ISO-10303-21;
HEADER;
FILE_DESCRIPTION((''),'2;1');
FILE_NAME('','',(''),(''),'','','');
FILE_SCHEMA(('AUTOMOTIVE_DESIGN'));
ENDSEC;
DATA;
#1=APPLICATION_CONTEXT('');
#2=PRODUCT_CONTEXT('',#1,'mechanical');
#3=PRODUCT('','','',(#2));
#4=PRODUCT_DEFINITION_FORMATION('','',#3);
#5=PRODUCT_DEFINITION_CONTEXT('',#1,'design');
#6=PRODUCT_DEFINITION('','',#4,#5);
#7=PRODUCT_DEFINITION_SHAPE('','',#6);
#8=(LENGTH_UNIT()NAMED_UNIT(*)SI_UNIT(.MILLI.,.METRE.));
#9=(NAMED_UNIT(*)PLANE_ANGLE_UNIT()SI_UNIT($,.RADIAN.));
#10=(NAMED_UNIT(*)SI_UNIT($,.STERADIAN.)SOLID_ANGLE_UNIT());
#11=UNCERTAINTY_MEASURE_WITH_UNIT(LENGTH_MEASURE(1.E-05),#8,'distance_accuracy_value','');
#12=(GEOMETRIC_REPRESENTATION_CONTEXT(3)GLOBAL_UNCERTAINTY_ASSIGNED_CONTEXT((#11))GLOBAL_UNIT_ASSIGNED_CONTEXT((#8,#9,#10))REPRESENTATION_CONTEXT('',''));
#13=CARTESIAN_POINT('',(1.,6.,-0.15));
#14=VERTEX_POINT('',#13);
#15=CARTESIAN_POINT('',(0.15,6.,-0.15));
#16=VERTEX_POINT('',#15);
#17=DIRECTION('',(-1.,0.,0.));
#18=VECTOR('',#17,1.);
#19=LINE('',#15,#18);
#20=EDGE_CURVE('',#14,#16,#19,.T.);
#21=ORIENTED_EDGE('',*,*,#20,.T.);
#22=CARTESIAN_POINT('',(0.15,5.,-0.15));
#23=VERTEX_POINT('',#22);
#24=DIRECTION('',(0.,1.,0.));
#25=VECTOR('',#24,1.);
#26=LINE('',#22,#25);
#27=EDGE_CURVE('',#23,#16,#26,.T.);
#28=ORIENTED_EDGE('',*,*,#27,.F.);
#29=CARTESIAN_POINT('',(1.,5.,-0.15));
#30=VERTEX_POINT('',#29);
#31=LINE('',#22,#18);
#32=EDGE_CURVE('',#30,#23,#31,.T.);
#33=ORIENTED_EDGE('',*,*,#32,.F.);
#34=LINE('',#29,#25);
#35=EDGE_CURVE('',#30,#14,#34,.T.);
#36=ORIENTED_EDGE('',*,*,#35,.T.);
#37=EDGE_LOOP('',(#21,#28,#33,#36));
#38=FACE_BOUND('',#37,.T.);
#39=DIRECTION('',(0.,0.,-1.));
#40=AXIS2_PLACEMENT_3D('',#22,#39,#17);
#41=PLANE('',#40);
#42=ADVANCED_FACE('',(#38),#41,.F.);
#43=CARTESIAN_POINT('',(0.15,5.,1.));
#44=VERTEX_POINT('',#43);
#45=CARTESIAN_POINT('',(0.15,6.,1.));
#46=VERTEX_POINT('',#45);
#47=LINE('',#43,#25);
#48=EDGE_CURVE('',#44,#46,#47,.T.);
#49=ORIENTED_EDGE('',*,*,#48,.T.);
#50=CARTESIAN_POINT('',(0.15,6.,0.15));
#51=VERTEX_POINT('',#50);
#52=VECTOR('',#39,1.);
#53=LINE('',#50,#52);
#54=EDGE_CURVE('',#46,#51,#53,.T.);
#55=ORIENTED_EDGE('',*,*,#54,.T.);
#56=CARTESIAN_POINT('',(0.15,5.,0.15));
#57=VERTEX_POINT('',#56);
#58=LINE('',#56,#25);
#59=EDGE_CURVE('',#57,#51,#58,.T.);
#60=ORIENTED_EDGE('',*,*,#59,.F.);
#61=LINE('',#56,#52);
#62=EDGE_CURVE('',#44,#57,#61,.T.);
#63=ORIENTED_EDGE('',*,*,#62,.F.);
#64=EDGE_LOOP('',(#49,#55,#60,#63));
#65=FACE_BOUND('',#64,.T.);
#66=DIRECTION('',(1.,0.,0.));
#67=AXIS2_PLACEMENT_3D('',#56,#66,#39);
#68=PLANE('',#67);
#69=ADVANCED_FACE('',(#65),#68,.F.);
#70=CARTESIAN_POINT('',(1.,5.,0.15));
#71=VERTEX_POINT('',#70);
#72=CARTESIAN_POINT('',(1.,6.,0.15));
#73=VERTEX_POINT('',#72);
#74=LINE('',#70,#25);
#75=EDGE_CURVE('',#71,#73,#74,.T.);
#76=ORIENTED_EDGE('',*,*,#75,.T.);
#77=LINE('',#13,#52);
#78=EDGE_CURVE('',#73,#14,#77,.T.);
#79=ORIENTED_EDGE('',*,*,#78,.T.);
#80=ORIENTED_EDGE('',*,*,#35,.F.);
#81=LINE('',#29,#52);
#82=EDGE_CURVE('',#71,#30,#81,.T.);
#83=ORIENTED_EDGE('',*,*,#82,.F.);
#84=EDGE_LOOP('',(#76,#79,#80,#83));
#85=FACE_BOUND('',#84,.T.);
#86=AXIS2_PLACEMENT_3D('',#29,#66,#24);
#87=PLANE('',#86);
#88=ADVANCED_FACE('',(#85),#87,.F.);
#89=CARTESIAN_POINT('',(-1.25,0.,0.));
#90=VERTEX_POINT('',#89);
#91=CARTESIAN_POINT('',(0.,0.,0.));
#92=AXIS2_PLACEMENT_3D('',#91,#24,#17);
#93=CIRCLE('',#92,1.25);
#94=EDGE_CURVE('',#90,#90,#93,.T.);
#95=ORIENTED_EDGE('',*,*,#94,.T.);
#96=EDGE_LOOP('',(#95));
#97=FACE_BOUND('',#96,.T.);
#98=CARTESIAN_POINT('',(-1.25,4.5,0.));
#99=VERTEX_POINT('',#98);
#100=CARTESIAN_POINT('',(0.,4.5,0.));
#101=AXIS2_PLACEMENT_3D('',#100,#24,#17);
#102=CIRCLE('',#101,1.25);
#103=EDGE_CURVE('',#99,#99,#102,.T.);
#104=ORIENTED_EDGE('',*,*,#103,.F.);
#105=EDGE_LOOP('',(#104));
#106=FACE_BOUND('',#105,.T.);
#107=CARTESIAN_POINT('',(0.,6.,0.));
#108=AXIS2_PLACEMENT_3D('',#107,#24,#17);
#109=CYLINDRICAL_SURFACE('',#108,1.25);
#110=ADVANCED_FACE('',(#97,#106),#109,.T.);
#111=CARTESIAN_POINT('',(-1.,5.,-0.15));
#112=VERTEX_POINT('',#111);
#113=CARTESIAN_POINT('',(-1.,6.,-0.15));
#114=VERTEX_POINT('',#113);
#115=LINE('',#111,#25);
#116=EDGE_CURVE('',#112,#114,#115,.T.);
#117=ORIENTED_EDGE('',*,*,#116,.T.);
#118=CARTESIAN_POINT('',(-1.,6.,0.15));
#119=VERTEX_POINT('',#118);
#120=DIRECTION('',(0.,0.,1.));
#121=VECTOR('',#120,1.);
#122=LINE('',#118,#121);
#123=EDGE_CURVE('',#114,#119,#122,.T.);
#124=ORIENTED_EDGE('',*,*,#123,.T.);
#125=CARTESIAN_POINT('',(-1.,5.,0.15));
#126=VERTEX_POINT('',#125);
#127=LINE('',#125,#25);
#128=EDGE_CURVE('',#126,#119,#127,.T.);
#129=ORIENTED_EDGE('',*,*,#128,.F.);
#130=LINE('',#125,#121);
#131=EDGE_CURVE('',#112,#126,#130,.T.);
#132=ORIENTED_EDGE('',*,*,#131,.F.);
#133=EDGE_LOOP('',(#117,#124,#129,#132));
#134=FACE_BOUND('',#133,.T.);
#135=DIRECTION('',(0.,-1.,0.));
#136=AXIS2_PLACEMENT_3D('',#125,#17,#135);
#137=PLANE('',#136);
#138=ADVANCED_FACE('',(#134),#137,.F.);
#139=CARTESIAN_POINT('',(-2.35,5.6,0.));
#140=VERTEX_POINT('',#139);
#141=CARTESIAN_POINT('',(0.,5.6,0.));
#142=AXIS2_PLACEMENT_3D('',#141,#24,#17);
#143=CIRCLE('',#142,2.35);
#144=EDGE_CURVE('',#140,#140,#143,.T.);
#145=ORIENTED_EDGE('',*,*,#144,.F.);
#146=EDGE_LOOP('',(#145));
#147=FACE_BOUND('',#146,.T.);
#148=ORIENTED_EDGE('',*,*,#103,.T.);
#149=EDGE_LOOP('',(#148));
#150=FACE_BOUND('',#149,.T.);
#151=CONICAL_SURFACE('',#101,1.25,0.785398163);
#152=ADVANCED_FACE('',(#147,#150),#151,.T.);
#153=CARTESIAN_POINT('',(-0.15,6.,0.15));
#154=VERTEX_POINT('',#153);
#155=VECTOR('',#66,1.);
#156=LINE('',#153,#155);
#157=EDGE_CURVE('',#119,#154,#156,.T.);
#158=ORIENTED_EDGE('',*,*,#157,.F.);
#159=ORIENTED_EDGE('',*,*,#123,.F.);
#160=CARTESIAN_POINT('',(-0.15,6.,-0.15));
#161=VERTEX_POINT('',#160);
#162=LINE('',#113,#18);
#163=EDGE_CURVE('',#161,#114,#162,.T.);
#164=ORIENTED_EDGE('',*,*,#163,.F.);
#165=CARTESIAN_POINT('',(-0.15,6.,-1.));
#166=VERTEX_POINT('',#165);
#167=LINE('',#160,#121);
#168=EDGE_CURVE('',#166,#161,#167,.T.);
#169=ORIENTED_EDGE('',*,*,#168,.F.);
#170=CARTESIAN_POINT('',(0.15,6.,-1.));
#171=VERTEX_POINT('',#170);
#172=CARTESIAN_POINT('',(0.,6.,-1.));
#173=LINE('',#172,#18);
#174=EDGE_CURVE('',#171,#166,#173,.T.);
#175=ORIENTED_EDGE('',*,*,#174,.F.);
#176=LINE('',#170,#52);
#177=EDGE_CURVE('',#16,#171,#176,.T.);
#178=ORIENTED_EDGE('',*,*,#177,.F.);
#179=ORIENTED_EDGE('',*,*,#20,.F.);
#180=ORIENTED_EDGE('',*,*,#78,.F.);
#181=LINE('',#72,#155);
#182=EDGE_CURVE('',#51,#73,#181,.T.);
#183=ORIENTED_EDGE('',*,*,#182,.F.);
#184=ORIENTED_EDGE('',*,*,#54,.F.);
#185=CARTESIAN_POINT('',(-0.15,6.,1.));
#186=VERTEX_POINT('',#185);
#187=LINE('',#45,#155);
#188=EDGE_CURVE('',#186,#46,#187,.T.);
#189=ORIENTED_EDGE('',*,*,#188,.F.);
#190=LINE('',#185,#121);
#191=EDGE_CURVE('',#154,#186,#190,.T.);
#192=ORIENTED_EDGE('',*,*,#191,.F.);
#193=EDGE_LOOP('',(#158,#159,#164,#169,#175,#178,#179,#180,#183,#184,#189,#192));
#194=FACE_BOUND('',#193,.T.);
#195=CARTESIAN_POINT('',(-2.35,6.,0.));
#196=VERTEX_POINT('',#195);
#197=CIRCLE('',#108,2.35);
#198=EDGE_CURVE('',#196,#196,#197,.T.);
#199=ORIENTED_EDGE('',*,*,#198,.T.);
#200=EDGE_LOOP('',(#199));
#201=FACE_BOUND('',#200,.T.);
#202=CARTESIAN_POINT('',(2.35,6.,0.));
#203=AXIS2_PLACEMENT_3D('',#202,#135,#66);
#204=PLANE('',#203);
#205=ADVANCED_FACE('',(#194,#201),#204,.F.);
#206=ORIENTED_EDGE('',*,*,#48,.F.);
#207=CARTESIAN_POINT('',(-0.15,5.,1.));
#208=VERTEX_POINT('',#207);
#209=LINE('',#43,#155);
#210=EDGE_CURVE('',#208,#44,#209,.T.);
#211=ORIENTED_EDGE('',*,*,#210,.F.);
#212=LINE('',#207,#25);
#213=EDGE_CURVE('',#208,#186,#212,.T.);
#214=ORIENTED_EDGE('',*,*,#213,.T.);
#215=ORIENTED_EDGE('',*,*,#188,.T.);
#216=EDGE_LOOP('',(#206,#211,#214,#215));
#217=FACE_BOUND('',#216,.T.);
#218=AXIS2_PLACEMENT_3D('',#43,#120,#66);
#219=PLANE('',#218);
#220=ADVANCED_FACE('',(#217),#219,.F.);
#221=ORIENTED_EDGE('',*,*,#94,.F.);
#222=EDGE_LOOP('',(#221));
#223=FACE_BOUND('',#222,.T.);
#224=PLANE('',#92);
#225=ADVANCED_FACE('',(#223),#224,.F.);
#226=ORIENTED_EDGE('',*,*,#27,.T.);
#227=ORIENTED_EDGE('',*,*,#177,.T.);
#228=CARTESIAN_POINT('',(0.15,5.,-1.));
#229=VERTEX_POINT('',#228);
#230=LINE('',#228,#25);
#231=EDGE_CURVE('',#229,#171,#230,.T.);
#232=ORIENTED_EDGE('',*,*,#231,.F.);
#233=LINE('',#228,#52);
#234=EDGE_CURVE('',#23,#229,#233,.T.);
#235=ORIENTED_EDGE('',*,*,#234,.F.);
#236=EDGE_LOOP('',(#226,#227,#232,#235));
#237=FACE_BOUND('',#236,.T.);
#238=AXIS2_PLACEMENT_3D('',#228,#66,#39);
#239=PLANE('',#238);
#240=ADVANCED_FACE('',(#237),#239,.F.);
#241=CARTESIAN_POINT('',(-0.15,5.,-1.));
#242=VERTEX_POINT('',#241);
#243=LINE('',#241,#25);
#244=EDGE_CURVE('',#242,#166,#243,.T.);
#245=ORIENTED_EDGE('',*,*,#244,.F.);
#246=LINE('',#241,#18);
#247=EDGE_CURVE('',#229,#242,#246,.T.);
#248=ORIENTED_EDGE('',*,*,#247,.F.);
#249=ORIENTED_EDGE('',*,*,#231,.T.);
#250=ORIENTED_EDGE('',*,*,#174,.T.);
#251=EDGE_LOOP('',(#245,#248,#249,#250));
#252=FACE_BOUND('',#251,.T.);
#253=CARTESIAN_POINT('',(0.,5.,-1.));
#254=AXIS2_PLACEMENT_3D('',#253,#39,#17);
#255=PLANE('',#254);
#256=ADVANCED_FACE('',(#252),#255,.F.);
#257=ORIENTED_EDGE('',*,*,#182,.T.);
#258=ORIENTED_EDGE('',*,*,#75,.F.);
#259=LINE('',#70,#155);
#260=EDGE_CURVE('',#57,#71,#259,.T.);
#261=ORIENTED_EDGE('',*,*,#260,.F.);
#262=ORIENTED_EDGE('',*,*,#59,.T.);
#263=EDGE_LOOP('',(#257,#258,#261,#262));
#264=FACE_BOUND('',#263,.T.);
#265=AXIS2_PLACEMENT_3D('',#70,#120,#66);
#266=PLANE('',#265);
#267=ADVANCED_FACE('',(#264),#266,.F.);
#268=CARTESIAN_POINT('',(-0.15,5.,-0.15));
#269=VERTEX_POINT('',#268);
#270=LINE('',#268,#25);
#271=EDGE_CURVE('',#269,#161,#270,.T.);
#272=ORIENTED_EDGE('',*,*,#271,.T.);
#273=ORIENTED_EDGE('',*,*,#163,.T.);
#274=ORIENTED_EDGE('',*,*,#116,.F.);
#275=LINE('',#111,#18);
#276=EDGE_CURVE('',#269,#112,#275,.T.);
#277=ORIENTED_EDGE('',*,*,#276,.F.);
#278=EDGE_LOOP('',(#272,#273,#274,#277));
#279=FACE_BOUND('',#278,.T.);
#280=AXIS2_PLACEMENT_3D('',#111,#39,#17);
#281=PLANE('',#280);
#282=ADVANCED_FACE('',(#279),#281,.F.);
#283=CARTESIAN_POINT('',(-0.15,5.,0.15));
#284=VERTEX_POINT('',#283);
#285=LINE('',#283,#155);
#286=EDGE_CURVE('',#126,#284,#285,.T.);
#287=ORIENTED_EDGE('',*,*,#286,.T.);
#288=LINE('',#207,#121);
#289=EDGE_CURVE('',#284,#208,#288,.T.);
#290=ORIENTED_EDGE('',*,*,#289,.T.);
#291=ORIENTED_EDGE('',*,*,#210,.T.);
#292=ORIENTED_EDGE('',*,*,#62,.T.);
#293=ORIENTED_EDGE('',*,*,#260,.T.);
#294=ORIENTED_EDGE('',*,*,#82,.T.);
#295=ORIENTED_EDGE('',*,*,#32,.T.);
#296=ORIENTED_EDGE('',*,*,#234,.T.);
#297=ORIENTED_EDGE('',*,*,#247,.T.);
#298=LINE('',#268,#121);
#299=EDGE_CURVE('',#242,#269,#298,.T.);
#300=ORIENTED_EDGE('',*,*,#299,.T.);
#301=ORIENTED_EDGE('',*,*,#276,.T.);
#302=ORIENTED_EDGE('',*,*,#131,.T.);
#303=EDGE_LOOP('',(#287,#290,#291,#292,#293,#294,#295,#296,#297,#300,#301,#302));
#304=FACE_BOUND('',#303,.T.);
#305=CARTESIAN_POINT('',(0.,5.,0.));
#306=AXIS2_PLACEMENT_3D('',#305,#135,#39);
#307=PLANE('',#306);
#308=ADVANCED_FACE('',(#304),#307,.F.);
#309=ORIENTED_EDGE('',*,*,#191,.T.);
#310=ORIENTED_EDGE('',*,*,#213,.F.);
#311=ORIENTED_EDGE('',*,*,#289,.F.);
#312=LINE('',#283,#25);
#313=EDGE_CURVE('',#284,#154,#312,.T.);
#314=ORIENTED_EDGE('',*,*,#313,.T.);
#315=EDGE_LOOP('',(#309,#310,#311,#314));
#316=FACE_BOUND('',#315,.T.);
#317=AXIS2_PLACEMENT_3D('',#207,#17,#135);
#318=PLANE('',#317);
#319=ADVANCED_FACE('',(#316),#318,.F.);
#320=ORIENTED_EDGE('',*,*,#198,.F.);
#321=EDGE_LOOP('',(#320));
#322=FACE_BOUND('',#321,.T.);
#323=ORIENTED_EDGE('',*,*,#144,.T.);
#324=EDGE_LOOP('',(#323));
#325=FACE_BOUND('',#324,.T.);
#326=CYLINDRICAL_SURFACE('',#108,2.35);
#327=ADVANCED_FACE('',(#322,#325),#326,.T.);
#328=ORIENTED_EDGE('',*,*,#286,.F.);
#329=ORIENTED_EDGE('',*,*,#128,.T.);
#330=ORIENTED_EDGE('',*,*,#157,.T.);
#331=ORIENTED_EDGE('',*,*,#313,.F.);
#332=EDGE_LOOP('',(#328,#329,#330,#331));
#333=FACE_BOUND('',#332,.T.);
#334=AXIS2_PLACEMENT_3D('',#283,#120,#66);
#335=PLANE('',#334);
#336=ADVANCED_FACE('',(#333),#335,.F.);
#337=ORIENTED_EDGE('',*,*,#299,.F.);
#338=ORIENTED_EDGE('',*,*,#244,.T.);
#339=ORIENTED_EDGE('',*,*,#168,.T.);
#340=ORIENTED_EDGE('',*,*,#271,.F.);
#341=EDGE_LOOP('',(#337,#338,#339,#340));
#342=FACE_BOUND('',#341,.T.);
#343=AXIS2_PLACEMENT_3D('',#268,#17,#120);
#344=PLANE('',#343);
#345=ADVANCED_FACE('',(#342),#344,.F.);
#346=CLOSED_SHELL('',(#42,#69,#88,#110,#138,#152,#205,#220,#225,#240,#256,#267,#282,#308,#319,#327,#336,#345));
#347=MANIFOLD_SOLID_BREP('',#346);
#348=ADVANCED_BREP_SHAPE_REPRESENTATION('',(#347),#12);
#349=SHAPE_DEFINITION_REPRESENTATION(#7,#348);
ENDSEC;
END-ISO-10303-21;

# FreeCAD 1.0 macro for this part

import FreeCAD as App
import Part
import Sketcher
Q = App.Units.Quantity

doc = App.newDocument("Part")
body = doc.addObject("PartDesign::Body", "Body")

sketch1 = doc.addObject("Sketcher::SketchObject", "Sketch")
body.addObject(sketch1)
sketch1.AttachmentSupport = (doc.XY_Plane, [""])
sketch1.MapMode = "FlatFace"
sketch1.addGeometry([
    Part.LineSegment(App.Vector(0, 0, 0), App.Vector(1.25, 0, 0)),
    Part.LineSegment(App.Vector(1.25, 0, 0), App.Vector(1.25, 4.5, 0)),
    Part.LineSegment(App.Vector(1.25, 4.5, 0), App.Vector(2.35, 5.6, 0)),
    Part.LineSegment(App.Vector(2.35, 5.6, 0), App.Vector(2.35, 6, 0)),
    Part.LineSegment(App.Vector(2.35, 6, 0), App.Vector(0, 6, 0)),
    Part.LineSegment(App.Vector(0, 6, 0), App.Vector(0, 0, 0)),
], False)
sketch1.addConstraint([
    Sketcher.Constraint("Coincident", 0, 2, 1, 1),
    Sketcher.Constraint("Coincident", 1, 2, 2, 1),
    Sketcher.Constraint("Coincident", 2, 2, 3, 1),
    Sketcher.Constraint("Coincident", 3, 2, 4, 1),
    Sketcher.Constraint("Coincident", 4, 2, 5, 1),
    Sketcher.Constraint("Coincident", 5, 2, 0, 1),
    Sketcher.Constraint("Horizontal", 0),
    Sketcher.Constraint("Vertical", 1),
    Sketcher.Constraint("Vertical", 3),
    Sketcher.Constraint("Horizontal", 4),
    Sketcher.Constraint("Vertical", 5),
    Sketcher.Constraint("Coincident", 5, 2, -1, 1),
    Sketcher.Constraint("DistanceY", 5, 2, 5, 1, Q("6 mm")),
    Sketcher.Constraint("Angle", 2, Q("45 deg")),
    Sketcher.Constraint("DistanceY", 1, 1, 1, 2, Q("4.5 mm")),
    Sketcher.Constraint("DistanceY", 3, 1, 3, 2, Q("0.4 mm")),
    Sketcher.Constraint("DistanceX", 0, 1, 0, 2, Q("1.25 mm")),
])
revolution = doc.addObject("PartDesign::Revolution", "Revolution")
body.addObject(revolution)
revolution.Profile = sketch1
revolution.ReferenceAxis = (sketch1, ["V_Axis"])
revolution.Angle = 360

sketch2 = doc.addObject("Sketcher::SketchObject", "Sketch001")
body.addObject(sketch2)
sketch2.AttachmentSupport = (doc.XZ_Plane, [""])
sketch2.MapMode = "FlatFace"
sketch2.AttachmentOffset = App.Placement(App.Vector(0, 0, -6), App.Rotation())
sketch2.addGeometry([
    Part.LineSegment(App.Vector(0.15, -1, 0), App.Vector(-0.15, -1, 0)),
    Part.LineSegment(App.Vector(-0.15, -1, 0), App.Vector(-0.15, -0.15, 0)),
    Part.LineSegment(App.Vector(-0.15, -0.15, 0), App.Vector(-1, -0.15, 0)),
    Part.LineSegment(App.Vector(-1, -0.15, 0), App.Vector(-1, 0.15, 0)),
    Part.LineSegment(App.Vector(-1, 0.15, 0), App.Vector(-0.15, 0.15, 0)),
    Part.LineSegment(App.Vector(-0.15, 0.15, 0), App.Vector(-0.15, 1, 0)),
    Part.LineSegment(App.Vector(-0.15, 1, 0), App.Vector(0.15, 1, 0)),
    Part.LineSegment(App.Vector(0.15, 1, 0), App.Vector(0.15, 0.15, 0)),
    Part.LineSegment(App.Vector(0.15, 0.15, 0), App.Vector(1, 0.15, 0)),
    Part.LineSegment(App.Vector(1, 0.15, 0), App.Vector(1, -0.15, 0)),
    Part.LineSegment(App.Vector(1, -0.15, 0), App.Vector(0.15, -0.15, 0)),
    Part.LineSegment(App.Vector(0.15, -0.15, 0), App.Vector(0.15, -1, 0)),
], False)
sketch2.addConstraint([
    Sketcher.Constraint("Coincident", 0, 2, 1, 1),
    Sketcher.Constraint("Coincident", 1, 2, 2, 1),
    Sketcher.Constraint("Coincident", 2, 2, 3, 1),
    Sketcher.Constraint("Coincident", 3, 2, 4, 1),
    Sketcher.Constraint("Coincident", 4, 2, 5, 1),
    Sketcher.Constraint("Coincident", 5, 2, 6, 1),
    Sketcher.Constraint("Coincident", 6, 2, 7, 1),
    Sketcher.Constraint("Coincident", 7, 2, 8, 1),
    Sketcher.Constraint("Coincident", 8, 2, 9, 1),
    Sketcher.Constraint("Coincident", 9, 2, 10, 1),
    Sketcher.Constraint("Coincident", 10, 2, 11, 1),
    Sketcher.Constraint("Coincident", 11, 2, 0, 1),
    Sketcher.Constraint("Horizontal", 0),
    Sketcher.Constraint("Vertical", 1),
    Sketcher.Constraint("Horizontal", 2),
    Sketcher.Constraint("Vertical", 3),
    Sketcher.Constraint("Horizontal", 4),
    Sketcher.Constraint("Vertical", 5),
    Sketcher.Constraint("Horizontal", 6),
    Sketcher.Constraint("Vertical", 7),
    Sketcher.Constraint("Horizontal", 8),
    Sketcher.Constraint("Vertical", 9),
    Sketcher.Constraint("Horizontal", 10),
    Sketcher.Constraint("Vertical", 11),
    Sketcher.Constraint("Symmetric", 0, 2, 6, 2, -1, 1),
    Sketcher.Constraint("Symmetric", 2, 2, 8, 2, -1, 1),
    Sketcher.Constraint("Symmetric", 4, 2, 10, 2, -1, 1),
    Sketcher.Constraint("Symmetric", 4, 2, 7, 2, -2),
    Sketcher.Constraint("Equal", 10, 1),
    Sketcher.Constraint("Equal", 6, 3),
    Sketcher.Constraint("DistanceX", 0, 2, 0, 1, Q("0.3 mm")),
    Sketcher.Constraint("DistanceY", 0, 2, -1, 1, Q("1 mm")),
])
pocket1 = doc.addObject("PartDesign::Pocket", "Pocket")
body.addObject(pocket1)
pocket1.Profile = sketch2
pocket1.Length = 1
pocket1.Reversed = True

doc.recompute()
